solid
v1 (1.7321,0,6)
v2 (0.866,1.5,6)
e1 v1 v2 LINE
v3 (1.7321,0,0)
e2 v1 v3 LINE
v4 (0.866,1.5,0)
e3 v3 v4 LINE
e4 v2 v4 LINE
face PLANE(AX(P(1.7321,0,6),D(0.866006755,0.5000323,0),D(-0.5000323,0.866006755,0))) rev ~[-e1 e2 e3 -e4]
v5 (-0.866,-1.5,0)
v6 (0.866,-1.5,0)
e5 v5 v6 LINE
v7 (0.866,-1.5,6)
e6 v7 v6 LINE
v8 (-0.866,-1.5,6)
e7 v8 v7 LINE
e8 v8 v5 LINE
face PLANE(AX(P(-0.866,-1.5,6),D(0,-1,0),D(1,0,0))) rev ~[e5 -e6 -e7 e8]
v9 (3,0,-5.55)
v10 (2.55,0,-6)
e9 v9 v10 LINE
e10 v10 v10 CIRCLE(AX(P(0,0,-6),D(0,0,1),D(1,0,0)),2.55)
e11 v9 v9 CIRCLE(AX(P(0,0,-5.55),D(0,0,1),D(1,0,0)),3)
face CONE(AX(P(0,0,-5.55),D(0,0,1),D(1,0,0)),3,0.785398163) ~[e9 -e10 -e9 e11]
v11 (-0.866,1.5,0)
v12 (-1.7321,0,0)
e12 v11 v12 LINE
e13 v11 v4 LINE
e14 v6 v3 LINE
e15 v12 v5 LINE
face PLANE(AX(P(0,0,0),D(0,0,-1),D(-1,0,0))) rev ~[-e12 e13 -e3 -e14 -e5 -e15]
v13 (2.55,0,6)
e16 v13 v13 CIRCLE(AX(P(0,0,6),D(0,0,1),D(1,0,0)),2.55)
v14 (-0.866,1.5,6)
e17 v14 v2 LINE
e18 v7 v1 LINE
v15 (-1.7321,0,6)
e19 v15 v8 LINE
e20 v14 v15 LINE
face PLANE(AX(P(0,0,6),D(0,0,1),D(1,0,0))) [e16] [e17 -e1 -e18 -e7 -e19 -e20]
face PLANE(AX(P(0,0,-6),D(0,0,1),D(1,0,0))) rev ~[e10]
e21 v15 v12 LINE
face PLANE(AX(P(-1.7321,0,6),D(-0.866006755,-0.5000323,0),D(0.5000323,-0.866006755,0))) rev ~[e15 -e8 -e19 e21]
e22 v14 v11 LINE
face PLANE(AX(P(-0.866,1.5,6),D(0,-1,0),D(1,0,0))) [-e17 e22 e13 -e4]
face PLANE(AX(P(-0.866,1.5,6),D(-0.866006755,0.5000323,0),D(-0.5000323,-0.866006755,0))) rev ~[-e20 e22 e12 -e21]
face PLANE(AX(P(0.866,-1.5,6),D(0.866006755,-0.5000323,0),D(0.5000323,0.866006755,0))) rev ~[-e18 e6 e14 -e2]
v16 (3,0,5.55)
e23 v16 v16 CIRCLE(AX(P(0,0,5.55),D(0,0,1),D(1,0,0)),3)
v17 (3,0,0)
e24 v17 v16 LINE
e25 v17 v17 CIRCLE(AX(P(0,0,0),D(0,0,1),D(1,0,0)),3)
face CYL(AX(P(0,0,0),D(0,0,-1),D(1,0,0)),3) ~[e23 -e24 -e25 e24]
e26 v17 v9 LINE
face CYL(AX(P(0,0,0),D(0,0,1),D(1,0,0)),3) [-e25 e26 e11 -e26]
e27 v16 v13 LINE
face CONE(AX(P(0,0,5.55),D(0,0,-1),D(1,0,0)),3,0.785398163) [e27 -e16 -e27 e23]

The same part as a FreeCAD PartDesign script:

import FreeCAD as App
import Part
import Sketcher
from FreeCAD import Vector


def edges_at(feature, points):
    """Names of the edges that pass closest to the given points."""
    edges = feature.Shape.Edges
    near = lambda p: min(range(len(edges)), key=lambda i: edges[i].distToShape(Part.Vertex(*p))[0])
    return sorted({f"Edge{near(p) + 1}" for p in points})


def add_polygon(sketch, points):
    """Adds a closed chain of lines whose ends are joined by coincident constraints."""
    first, n = sketch.GeometryCount, len(points)
    for a, b in zip(points, points[1:] + points[:1]):
        sketch.addGeometry(Part.LineSegment(App.Vector(*a, 0), App.Vector(*b, 0)), False)
    for i in range(n):
        sketch.addConstraint(Sketcher.Constraint("Coincident", first + i, 2, first + (i + 1) % n, 1))

doc = App.newDocument("Part")
params = doc.addObject("Spreadsheet::Sheet", "Params")
for row, (alias, value) in enumerate([
    ("sketch1_diameter", "6 mm"),
    ("pad1_length", "12 mm"),
    ("chamfer_size", "0.45 mm"),
    ("pocket1_length", "6 mm"),
], start=1):
    params.set(f"A{row}", alias)
    params.set(f"B{row}", "=" + value)
    params.setAlias(f"B{row}", alias)

body = doc.addObject("PartDesign::Body", "Body")

# Sketch on XY plane
sketch1 = doc.addObject("Sketcher::SketchObject", "Sketch")
body.addObject(sketch1)
sketch1.AttachmentSupport = (doc.XY_Plane, [""])
sketch1.MapMode = "FlatFace"
sketch1.addGeometry(Part.Circle(Vector(0, 0, 0), Vector(0, 0, 1), 3), False)
sketch1.addConstraint(Sketcher.Constraint("Coincident", 0, 3, -1, 1))
sketch1.addConstraint(Sketcher.Constraint("Diameter", 0, 6.0))
sketch1.setExpression("Constraints[1]", "Params.sketch1_diameter")
pad1 = doc.addObject("PartDesign::Pad", "Pad")
body.addObject(pad1)
pad1.Profile = sketch1
pad1.setExpression("Length", "Params.pad1_length")
pad1.Midplane = True
doc.recompute()

chamfer = doc.addObject("PartDesign::Chamfer", "Chamfer")
body.addObject(chamfer)
chamfer.Base = (pad1, edges_at(pad1, [(-3, 0, -6), (-3, 0, 6)]))
chamfer.setExpression("Size", "Params.chamfer_size")

# Sketch on XY plane
sketch2 = doc.addObject("Sketcher::SketchObject", "Sketch001")
body.addObject(sketch2)
sketch2.AttachmentSupport = (doc.XY_Plane, [""])
sketch2.MapMode = "FlatFace"
sketch2.AttachmentOffset = App.Placement(Vector(0, 0, 6), App.Rotation())
add_polygon(sketch2, [(0.9, 1.5), (-0.9, 1.5), (-1.7, 0), (-0.9, -1.5), (0.9, -1.5), (1.7, 0)])  # lines 0-5
sketch2.addConstraint(Sketcher.Constraint("Horizontal", 0))
sketch2.addConstraint(Sketcher.Constraint("Horizontal", 3))
sketch2.addConstraint(Sketcher.Constraint("Symmetric", 0, 2, 3, 2, -1, 1))
sketch2.addConstraint(Sketcher.Constraint("Symmetric", 1, 2, 4, 2, -1, 1))
sketch2.addConstraint(Sketcher.Constraint("PointOnObject", 1, 2, -1))
sketch2.addConstraint(Sketcher.Constraint("Parallel", 2, 5))
sketch2.addConstraint(Sketcher.Constraint("Vertical", 0, 2, 2, 2))
sketch2.addConstraint(Sketcher.Constraint("DistanceY", 2, 2, 0, 2, 3.0))
sketch2.addConstraint(Sketcher.Constraint("DistanceX", 0, 2, 0, 1, 1.732))
sketch2.addConstraint(Sketcher.Constraint("Distance", 1, 1.732))
pocket1 = doc.addObject("PartDesign::Pocket", "Pocket")
body.addObject(pocket1)
pocket1.Profile = sketch2
pocket1.setExpression("Length", "Params.pocket1_length")

doc.recompute()
